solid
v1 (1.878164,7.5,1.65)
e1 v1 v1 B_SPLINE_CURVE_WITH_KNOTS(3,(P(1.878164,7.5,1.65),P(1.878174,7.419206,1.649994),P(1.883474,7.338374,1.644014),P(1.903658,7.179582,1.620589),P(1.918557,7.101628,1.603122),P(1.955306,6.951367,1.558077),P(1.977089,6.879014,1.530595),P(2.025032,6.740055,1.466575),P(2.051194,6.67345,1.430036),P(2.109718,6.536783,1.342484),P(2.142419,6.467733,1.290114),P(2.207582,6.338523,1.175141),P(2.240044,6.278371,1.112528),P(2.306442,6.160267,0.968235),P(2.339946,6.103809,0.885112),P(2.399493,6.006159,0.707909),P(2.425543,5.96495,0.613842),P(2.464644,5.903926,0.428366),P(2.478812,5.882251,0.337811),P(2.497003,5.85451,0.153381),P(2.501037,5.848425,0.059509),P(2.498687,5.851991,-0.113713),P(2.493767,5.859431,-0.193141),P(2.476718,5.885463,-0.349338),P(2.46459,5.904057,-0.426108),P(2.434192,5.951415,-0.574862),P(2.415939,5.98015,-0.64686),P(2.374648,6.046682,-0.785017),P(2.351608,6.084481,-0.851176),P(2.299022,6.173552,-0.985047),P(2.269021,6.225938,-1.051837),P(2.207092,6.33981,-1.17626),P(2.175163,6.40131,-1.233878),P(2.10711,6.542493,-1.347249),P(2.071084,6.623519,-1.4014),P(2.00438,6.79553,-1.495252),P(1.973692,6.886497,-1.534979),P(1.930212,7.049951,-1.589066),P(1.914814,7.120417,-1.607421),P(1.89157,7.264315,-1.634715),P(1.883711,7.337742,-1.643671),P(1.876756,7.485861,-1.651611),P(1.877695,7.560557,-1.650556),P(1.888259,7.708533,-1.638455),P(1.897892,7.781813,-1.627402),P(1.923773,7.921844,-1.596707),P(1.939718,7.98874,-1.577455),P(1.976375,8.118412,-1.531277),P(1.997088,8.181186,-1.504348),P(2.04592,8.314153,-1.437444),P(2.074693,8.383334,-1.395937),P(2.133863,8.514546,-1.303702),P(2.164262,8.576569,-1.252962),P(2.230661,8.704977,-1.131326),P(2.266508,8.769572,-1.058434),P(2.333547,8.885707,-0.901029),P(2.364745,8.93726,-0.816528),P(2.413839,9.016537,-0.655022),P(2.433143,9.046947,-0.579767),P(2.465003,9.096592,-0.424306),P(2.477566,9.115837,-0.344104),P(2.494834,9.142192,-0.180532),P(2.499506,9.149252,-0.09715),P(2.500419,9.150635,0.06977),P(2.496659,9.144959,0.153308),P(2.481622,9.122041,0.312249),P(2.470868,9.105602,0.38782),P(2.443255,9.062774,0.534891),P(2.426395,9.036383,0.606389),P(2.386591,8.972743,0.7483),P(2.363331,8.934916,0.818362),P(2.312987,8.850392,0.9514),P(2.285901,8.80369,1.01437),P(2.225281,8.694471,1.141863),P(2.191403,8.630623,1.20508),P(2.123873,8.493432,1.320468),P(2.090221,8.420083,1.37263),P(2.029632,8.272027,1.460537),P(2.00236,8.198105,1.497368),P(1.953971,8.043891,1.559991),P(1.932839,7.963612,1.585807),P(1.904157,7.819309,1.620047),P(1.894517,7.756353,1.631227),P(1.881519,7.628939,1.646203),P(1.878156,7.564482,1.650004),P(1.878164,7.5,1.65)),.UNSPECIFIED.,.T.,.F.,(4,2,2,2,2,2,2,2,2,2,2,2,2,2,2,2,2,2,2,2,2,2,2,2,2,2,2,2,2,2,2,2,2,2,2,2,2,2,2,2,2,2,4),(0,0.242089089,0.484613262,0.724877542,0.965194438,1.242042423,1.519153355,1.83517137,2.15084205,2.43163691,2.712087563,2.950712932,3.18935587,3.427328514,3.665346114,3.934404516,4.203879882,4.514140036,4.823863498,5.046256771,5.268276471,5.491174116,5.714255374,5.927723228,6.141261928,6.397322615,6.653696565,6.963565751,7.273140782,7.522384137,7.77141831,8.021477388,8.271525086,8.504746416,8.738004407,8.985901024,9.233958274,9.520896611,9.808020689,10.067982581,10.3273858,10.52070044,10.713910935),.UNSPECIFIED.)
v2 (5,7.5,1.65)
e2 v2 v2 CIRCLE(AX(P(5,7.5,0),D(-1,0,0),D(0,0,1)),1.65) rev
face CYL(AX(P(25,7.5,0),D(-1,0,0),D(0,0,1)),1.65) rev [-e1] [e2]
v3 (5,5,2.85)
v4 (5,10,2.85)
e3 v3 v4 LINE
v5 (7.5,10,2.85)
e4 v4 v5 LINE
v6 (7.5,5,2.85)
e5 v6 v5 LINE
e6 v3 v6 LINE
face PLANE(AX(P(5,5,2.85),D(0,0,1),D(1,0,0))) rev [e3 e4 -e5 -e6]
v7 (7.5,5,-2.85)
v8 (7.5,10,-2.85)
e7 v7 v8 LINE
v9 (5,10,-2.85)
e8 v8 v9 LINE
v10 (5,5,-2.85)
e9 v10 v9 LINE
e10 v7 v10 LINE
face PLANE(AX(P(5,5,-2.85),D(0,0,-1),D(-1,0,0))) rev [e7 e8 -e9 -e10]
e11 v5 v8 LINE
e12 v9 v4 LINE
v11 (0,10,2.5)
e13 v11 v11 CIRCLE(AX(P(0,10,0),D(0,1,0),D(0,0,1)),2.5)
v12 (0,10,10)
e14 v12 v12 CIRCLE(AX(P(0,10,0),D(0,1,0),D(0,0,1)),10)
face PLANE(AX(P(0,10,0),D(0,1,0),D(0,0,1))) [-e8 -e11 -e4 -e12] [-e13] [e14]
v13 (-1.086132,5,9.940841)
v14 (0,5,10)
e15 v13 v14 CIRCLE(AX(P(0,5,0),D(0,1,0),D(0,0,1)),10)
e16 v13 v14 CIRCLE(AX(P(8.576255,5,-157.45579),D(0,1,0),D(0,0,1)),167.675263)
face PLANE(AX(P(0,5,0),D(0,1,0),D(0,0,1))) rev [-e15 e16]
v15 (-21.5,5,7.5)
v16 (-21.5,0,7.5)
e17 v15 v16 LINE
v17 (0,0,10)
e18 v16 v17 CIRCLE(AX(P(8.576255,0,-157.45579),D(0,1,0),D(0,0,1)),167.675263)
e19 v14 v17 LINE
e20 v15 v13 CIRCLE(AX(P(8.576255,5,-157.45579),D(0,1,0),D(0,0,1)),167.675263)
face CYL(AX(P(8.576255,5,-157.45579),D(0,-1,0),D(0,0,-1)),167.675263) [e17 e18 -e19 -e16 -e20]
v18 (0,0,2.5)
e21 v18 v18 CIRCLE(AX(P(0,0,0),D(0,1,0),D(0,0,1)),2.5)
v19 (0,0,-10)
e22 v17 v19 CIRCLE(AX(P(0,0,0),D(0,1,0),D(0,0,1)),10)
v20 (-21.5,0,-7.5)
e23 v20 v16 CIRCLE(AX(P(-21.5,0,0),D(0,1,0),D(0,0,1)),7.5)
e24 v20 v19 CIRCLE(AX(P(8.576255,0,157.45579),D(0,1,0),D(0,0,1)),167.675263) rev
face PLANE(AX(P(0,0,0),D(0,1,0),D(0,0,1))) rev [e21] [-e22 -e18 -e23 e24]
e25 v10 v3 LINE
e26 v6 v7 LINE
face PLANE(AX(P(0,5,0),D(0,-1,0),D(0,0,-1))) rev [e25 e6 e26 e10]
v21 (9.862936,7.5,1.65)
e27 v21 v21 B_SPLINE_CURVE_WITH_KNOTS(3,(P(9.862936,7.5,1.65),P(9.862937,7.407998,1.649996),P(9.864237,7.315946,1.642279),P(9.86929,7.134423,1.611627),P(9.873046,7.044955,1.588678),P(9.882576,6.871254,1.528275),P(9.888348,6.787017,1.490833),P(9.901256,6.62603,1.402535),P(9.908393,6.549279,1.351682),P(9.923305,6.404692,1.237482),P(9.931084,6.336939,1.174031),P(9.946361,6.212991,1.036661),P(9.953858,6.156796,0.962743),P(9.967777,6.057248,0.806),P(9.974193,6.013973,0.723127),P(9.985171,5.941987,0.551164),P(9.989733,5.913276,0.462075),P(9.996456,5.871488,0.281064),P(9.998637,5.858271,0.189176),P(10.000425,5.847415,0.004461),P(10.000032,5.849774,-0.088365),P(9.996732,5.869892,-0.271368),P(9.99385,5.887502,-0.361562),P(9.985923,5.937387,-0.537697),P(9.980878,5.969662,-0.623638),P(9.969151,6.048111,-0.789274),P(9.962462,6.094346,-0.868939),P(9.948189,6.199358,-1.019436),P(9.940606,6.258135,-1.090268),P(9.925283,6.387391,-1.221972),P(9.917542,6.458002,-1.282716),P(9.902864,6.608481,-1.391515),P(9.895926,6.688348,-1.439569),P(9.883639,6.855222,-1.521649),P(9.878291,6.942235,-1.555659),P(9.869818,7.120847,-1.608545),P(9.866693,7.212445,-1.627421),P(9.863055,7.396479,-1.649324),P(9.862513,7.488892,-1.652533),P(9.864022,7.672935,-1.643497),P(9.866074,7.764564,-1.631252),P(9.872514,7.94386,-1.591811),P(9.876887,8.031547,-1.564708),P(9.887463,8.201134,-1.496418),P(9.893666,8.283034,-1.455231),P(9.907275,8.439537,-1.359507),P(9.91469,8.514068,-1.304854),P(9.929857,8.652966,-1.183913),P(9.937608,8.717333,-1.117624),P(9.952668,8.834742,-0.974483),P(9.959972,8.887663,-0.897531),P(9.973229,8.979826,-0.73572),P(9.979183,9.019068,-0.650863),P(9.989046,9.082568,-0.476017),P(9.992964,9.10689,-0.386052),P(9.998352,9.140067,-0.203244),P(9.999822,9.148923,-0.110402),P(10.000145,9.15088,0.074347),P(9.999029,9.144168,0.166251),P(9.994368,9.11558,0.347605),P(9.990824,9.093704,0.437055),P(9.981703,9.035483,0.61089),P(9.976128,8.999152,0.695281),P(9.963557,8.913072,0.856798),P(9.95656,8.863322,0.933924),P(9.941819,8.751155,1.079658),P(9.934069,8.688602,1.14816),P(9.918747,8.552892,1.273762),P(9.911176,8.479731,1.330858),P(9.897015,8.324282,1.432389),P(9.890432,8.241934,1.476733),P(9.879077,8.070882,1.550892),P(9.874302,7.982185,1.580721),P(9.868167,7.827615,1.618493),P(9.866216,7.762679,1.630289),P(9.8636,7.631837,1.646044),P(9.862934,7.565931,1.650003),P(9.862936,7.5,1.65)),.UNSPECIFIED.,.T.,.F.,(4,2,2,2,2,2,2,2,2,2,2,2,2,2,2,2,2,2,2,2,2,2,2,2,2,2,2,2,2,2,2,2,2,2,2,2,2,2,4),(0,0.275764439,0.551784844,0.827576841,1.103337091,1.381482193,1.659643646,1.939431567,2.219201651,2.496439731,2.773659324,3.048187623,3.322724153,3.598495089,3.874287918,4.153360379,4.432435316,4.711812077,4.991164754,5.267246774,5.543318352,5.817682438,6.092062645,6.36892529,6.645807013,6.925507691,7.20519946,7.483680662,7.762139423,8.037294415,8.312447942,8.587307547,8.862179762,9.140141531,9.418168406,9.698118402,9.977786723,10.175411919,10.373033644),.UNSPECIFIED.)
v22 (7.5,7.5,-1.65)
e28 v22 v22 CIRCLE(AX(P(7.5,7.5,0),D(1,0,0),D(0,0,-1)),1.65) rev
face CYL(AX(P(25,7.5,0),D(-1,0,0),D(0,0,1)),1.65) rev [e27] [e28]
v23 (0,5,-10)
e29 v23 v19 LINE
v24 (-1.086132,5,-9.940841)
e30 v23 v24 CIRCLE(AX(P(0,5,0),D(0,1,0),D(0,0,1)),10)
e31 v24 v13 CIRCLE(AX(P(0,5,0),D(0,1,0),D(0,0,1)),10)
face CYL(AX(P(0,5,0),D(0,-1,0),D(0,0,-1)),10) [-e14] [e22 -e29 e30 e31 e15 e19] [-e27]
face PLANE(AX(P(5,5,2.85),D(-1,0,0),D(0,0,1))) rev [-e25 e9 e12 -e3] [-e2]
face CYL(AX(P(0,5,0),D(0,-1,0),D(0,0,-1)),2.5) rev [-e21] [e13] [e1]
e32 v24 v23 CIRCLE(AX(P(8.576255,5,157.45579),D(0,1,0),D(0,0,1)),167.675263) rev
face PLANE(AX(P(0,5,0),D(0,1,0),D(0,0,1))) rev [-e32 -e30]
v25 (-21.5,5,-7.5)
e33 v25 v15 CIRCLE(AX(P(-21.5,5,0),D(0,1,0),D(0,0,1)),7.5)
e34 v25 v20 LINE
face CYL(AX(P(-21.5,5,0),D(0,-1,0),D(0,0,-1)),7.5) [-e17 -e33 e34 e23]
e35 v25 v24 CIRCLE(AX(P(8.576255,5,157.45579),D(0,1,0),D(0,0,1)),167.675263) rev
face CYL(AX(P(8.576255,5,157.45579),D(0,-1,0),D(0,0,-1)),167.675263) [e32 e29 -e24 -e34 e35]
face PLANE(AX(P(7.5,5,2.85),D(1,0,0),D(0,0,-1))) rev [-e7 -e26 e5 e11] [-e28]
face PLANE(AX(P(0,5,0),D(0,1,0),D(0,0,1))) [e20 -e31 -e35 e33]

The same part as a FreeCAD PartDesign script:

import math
import FreeCAD as App
import Part
import Sketcher

V = App.Vector

doc = App.newDocument("Part")
params = doc.addObject("Spreadsheet::Sheet", "Params")
for row, (alias, value) in enumerate([
    ("sketch1_diameter", "5 mm"),
    ("sketch1_radius", "10 mm"),
    ("sketch1_radius2", "7.5 mm"),
    ("pad1_length", "5 mm"),
    ("sketch2_diameter", "20 mm"),
    ("sketch2_diameter2", "5 mm"),
    ("pad2_length", "5 mm"),
    ("sketch3_width", "2.5 mm"),
    ("sketch3_height", "5.7 mm"),
    ("pocket1_length", "5 mm"),
    ("sketch4_diameter", "3.3 mm"),
    ("pocket2_length", "25 mm"),
], start=1):
    params.set(f"A{row}", alias)
    params.set(f"B{row}", "=" + value)
    params.setAlias(f"B{row}", alias)

body = doc.addObject("PartDesign::Body", "Body")

# Sketch on XZ plane
sketch1 = body.newObject("Sketcher::SketchObject", "Sketch")
sketch1.AttachmentSupport = (doc.getObject("XZ_Plane"), [""])
sketch1.MapMode = "FlatFace"
sketch1.addGeometry(Part.ArcOfCircle(Part.Circle(V(8.6, -157.5, 0), V(0, 0, 1), 167.7), math.radians(93.3), math.radians(100.33)), False)
sketch1.addGeometry(Part.ArcOfCircle(Part.Circle(V(8.6, -157.5, 0), V(0, 0, 1), 167.7), math.radians(92.93), math.radians(93.3)), False)
sketch1.addGeometry(Part.ArcOfCircle(Part.Circle(V(0, 0, 0), V(0, 0, 1), 10), math.radians(-90), math.radians(90)), False)
sketch1.addGeometry(Part.ArcOfCircle(Part.Circle(V(8.6, 157.5, 0), V(0, 0, 1), 167.7), math.radians(-93.3), math.radians(-92.93)), False)
sketch1.addGeometry(Part.ArcOfCircle(Part.Circle(V(8.6, 157.5, 0), V(0, 0, 1), 167.7), math.radians(-100.33), math.radians(-93.3)), False)
sketch1.addGeometry(Part.ArcOfCircle(Part.Circle(V(-21.5, 0, 0), V(0, 0, 1), 7.5), math.radians(90), math.radians(270)), False)
sketch1.addGeometry(Part.Circle(V(0, 0, 0), V(0, 0, 1), 2.5), False)
sketch1.addConstraint(Sketcher.Constraint("Tangent", 0, 1, 1, 2))
sketch1.addConstraint(Sketcher.Constraint("Coincident", 1, 1, 2, 2))
sketch1.addConstraint(Sketcher.Constraint("Coincident", 2, 1, 3, 2))
sketch1.addConstraint(Sketcher.Constraint("Tangent", 3, 1, 4, 2))
sketch1.addConstraint(Sketcher.Constraint("Coincident", 4, 1, 5, 2))
sketch1.addConstraint(Sketcher.Constraint("Coincident", 5, 1, 0, 2))
sketch1.addConstraint(Sketcher.Constraint("Coincident", 2, 3, -1, 1))
sketch1.addConstraint(Sketcher.Constraint("Coincident", 6, 3, -1, 1))
sketch1.addConstraint(Sketcher.Constraint("Equal", 0, 1))
sketch1.addConstraint(Sketcher.Constraint("Equal", 1, 3))
sketch1.addConstraint(Sketcher.Constraint("Equal", 3, 4))
sketch1.addConstraint(Sketcher.Constraint("Symmetric", 0, 3, 3, 3, -1))
sketch1.addConstraint(Sketcher.Constraint("PointOnObject", 5, 3, -1))
sketch1.addConstraint(Sketcher.Constraint("PointOnObject", 1, 1, -2))
sketch1.addConstraint(Sketcher.Constraint("Vertical", 0, 1, 3, 1))
sketch1.addConstraint(Sketcher.Constraint("Vertical", 5, 3, 4, 1))
sketch1.addConstraint(Sketcher.Constraint("Diameter", 6, 5.0))
sketch1.addConstraint(Sketcher.Constraint("Radius", 2, 10.0))
sketch1.addConstraint(Sketcher.Constraint("Radius", 5, 7.5))
sketch1.addConstraint(Sketcher.Constraint("DistanceX", 5, 3, -1, 1, 21.5))
sketch1.addConstraint(Sketcher.Constraint("Radius", 0, 167.675263))
sketch1.addConstraint(Sketcher.Constraint("DistanceX", 0, 1, -1, 1, 1.086132))
sketch1.setExpression("Constraints[16]", "Params.sketch1_diameter")
sketch1.setExpression("Constraints[17]", "Params.sketch1_radius")
sketch1.setExpression("Constraints[18]", "Params.sketch1_radius2")
pad1 = body.newObject("PartDesign::Pad", "Pad")
pad1.Profile = sketch1
pad1.setExpression("Length", "Params.pad1_length")
pad1.Reversed = True

# Sketch on XZ plane
sketch2 = body.newObject("Sketcher::SketchObject", "Sketch001")
sketch2.AttachmentSupport = (doc.getObject("XZ_Plane"), [""])
sketch2.MapMode = "FlatFace"
sketch2.AttachmentOffset = App.Placement(V(0, 0, -5), App.Rotation())
sketch2.addGeometry(Part.Circle(V(0, 0, 0), V(0, 0, 1), 10), False)
sketch2.addGeometry(Part.Circle(V(0, 0, 0), V(0, 0, 1), 2.5), False)
sketch2.addConstraint(Sketcher.Constraint("Coincident", 0, 3, -1, 1))
sketch2.addConstraint(Sketcher.Constraint("Coincident", 1, 3, -1, 1))
sketch2.addConstraint(Sketcher.Constraint("Diameter", 0, 20.0))
sketch2.addConstraint(Sketcher.Constraint("Diameter", 1, 5.0))
sketch2.setExpression("Constraints[2]", "Params.sketch2_diameter")
sketch2.setExpression("Constraints[3]", "Params.sketch2_diameter2")
pad2 = body.newObject("PartDesign::Pad", "Pad001")
pad2.Profile = sketch2
pad2.setExpression("Length", "Params.pad2_length")
pad2.Reversed = True

# Sketch on XZ plane
sketch3 = body.newObject("Sketcher::SketchObject", "Sketch002")
sketch3.AttachmentSupport = (doc.getObject("XZ_Plane"), [""])
sketch3.MapMode = "FlatFace"
sketch3.AttachmentOffset = App.Placement(V(0, 0, -10), App.Rotation())
sketch3.addGeometry(Part.LineSegment(V(5, -2.9, 0), V(5, 2.9, 0)), False)
sketch3.addGeometry(Part.LineSegment(V(5, 2.9, 0), V(7.5, 2.9, 0)), False)
sketch3.addGeometry(Part.LineSegment(V(7.5, 2.9, 0), V(7.5, -2.9, 0)), False)
sketch3.addGeometry(Part.LineSegment(V(7.5, -2.9, 0), V(5, -2.9, 0)), False)
sketch3.addConstraint(Sketcher.Constraint("Coincident", 0, 2, 1, 1))
sketch3.addConstraint(Sketcher.Constraint("Coincident", 1, 2, 2, 1))
sketch3.addConstraint(Sketcher.Constraint("Coincident", 2, 2, 3, 1))
sketch3.addConstraint(Sketcher.Constraint("Coincident", 3, 2, 0, 1))
sketch3.addConstraint(Sketcher.Constraint("Vertical", 0))
sketch3.addConstraint(Sketcher.Constraint("Horizontal", 1))
sketch3.addConstraint(Sketcher.Constraint("Vertical", 2))
sketch3.addConstraint(Sketcher.Constraint("Horizontal", 3))
sketch3.addConstraint(Sketcher.Constraint("DistanceX", 1, 1, 1, 2, 2.5))
sketch3.addConstraint(Sketcher.Constraint("DistanceY", 0, 1, 0, 2, 5.7))
sketch3.addConstraint(Sketcher.Constraint("DistanceX", -1, 1, 0, 2, 5.0))
sketch3.addConstraint(Sketcher.Constraint("DistanceY", -1, 1, 0, 2, 2.85))
sketch3.setExpression("Constraints[8]", "Params.sketch3_width")
sketch3.setExpression("Constraints[9]", "Params.sketch3_height")
pocket1 = body.newObject("PartDesign::Pocket", "Pocket")
pocket1.Profile = sketch3
pocket1.setExpression("Length", "Params.pocket1_length")
pocket1.Reversed = True

# Sketch on YZ plane
sketch4 = body.newObject("Sketcher::SketchObject", "Sketch003")
sketch4.AttachmentSupport = (doc.getObject("YZ_Plane"), [""])
sketch4.MapMode = "FlatFace"
sketch4.addGeometry(Part.Circle(V(7.5, 0, 0), V(0, 0, 1), 1.6), False)
sketch4.addConstraint(Sketcher.Constraint("PointOnObject", 0, 3, -1))
sketch4.addConstraint(Sketcher.Constraint("Diameter", 0, 3.3))
sketch4.addConstraint(Sketcher.Constraint("DistanceX", -1, 1, 0, 3, 7.5))
sketch4.setExpression("Constraints[1]", "Params.sketch4_diameter")
pocket2 = body.newObject("PartDesign::Pocket", "Pocket001")
pocket2.Profile = sketch4
pocket2.setExpression("Length", "Params.pocket2_length")
pocket2.Reversed = True

doc.recompute()
